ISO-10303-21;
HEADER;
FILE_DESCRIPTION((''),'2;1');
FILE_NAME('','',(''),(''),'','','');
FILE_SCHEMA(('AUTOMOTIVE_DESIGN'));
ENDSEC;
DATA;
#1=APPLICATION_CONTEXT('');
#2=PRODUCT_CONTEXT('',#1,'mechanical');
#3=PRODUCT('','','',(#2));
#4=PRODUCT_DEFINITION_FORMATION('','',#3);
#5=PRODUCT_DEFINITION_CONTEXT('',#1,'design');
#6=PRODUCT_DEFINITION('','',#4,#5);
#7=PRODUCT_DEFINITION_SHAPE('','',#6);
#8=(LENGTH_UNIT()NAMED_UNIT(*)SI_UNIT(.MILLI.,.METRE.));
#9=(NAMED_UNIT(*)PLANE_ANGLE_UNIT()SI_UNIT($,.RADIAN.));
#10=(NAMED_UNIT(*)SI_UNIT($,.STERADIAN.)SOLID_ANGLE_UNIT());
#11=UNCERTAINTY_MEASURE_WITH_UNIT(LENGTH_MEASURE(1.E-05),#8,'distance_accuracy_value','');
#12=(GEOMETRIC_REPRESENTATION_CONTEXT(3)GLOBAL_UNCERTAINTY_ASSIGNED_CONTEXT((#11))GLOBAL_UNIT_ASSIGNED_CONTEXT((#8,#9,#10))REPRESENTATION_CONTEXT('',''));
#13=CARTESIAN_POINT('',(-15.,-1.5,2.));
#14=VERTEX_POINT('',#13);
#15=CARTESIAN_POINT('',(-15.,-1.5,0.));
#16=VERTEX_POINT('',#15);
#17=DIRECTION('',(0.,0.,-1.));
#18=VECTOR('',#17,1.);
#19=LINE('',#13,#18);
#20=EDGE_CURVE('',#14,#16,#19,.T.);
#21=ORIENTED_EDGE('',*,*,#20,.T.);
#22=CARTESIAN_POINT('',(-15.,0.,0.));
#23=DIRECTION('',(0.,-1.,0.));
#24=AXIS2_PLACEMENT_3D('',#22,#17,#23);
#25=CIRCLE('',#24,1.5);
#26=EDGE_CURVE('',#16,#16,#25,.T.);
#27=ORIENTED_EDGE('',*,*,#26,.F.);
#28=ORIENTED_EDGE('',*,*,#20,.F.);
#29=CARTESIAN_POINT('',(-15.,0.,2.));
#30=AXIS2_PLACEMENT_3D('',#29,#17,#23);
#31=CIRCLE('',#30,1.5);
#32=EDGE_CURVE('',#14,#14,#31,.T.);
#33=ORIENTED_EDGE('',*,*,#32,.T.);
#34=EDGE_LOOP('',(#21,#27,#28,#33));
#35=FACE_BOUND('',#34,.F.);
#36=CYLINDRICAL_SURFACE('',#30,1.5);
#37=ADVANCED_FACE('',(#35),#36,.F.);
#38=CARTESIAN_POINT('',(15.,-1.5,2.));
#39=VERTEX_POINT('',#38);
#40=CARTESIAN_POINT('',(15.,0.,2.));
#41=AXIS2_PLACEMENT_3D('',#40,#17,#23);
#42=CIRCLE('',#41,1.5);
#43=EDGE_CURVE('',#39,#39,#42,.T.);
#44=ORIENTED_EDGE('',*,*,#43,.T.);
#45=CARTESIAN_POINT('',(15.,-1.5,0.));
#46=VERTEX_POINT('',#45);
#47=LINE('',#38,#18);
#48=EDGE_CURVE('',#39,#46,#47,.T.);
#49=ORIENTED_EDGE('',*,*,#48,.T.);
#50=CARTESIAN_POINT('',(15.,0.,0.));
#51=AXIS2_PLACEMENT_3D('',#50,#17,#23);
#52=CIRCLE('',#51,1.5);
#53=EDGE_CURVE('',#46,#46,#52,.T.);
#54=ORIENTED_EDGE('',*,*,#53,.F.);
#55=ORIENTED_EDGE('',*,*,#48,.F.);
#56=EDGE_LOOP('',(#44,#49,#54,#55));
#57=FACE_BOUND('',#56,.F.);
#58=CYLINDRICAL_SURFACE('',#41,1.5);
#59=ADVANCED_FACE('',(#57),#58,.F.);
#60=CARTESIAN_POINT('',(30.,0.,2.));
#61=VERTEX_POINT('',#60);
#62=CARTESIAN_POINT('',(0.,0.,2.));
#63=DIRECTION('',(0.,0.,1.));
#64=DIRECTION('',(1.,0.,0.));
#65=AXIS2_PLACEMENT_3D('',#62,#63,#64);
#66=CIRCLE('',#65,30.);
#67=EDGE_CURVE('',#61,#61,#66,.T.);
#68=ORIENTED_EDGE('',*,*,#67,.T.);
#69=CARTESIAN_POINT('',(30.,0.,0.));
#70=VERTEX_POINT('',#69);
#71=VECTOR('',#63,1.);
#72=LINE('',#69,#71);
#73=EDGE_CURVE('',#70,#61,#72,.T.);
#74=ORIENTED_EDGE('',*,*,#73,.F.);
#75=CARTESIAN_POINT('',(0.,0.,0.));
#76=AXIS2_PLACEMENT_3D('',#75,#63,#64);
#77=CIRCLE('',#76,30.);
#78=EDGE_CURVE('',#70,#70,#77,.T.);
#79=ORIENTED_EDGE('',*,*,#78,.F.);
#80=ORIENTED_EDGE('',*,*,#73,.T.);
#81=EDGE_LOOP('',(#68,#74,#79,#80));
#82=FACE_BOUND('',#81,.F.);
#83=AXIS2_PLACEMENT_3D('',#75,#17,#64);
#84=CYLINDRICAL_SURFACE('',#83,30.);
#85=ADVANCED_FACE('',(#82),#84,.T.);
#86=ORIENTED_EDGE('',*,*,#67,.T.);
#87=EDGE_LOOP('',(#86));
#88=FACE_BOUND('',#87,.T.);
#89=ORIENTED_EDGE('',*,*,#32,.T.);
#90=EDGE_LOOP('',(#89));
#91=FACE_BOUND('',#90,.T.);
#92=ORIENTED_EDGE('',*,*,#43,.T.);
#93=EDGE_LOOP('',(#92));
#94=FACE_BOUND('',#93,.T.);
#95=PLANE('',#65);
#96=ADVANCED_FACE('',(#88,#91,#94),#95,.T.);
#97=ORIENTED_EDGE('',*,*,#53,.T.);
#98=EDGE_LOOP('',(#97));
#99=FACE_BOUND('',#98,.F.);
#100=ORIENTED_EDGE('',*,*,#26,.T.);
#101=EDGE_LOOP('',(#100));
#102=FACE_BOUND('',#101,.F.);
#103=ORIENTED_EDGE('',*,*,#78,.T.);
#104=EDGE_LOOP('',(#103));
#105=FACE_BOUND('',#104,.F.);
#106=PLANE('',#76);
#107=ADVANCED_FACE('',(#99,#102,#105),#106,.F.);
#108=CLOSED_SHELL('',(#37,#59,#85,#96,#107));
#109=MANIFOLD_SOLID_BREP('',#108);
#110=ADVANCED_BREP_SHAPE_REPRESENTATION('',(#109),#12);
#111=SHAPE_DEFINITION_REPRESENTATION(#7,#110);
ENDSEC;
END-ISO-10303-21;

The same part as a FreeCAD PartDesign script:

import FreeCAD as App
import Part
import Sketcher
from FreeCAD import Vector

doc = App.newDocument("Part")
body = doc.addObject("PartDesign::Body", "Body")

# Sketch on XY plane
sketch1 = body.newObject("Sketcher::SketchObject", "Sketch")
sketch1.AttachmentSupport = (doc.getObject("XY_Plane"), [""])
sketch1.MapMode = "FlatFace"
sketch1.addGeometry(Part.Circle(Vector(0, 0, 0), Vector(0, 0, 1), 30), False)
sketch1.addConstraint(Sketcher.Constraint("Coincident", 0, 3, -1, 1))
sketch1.addConstraint(Sketcher.Constraint("Diameter", 0, 60.0))
pad1 = body.newObject("PartDesign::Pad", "Pad")
pad1.Profile = sketch1
pad1.Length = 2

# Sketch on XY plane
sketch2 = body.newObject("Sketcher::SketchObject", "Sketch001")
sketch2.AttachmentSupport = (doc.getObject("XY_Plane"), [""])
sketch2.MapMode = "FlatFace"
sketch2.AttachmentOffset = App.Placement(Vector(0, 0, 2), App.Rotation())
sketch2.addGeometry(Part.Circle(Vector(15, 0, 0), Vector(0, 0, 1), 1.5), False)
sketch2.addGeometry(Part.Circle(Vector(-15, 0, 0), Vector(0, 0, 1), 1.5), False)
sketch2.addConstraint(Sketcher.Constraint("Equal", 0, 1))
sketch2.addConstraint(Sketcher.Constraint("Symmetric", 0, 3, 1, 3, -1, 1))
sketch2.addConstraint(Sketcher.Constraint("PointOnObject", 0, 3, -1))
sketch2.addConstraint(Sketcher.Constraint("Diameter", 0, 3.0))
sketch2.addConstraint(Sketcher.Constraint("DistanceX", -1, 1, 0, 3, 15.0))
doc.recompute()
hole = body.newObject("PartDesign::Hole", "Hole")
hole.Profile = sketch2
hole.ThreadType = "None"
hole.Diameter = 3
hole.DepthType = "ThroughAll"

doc.recompute()
